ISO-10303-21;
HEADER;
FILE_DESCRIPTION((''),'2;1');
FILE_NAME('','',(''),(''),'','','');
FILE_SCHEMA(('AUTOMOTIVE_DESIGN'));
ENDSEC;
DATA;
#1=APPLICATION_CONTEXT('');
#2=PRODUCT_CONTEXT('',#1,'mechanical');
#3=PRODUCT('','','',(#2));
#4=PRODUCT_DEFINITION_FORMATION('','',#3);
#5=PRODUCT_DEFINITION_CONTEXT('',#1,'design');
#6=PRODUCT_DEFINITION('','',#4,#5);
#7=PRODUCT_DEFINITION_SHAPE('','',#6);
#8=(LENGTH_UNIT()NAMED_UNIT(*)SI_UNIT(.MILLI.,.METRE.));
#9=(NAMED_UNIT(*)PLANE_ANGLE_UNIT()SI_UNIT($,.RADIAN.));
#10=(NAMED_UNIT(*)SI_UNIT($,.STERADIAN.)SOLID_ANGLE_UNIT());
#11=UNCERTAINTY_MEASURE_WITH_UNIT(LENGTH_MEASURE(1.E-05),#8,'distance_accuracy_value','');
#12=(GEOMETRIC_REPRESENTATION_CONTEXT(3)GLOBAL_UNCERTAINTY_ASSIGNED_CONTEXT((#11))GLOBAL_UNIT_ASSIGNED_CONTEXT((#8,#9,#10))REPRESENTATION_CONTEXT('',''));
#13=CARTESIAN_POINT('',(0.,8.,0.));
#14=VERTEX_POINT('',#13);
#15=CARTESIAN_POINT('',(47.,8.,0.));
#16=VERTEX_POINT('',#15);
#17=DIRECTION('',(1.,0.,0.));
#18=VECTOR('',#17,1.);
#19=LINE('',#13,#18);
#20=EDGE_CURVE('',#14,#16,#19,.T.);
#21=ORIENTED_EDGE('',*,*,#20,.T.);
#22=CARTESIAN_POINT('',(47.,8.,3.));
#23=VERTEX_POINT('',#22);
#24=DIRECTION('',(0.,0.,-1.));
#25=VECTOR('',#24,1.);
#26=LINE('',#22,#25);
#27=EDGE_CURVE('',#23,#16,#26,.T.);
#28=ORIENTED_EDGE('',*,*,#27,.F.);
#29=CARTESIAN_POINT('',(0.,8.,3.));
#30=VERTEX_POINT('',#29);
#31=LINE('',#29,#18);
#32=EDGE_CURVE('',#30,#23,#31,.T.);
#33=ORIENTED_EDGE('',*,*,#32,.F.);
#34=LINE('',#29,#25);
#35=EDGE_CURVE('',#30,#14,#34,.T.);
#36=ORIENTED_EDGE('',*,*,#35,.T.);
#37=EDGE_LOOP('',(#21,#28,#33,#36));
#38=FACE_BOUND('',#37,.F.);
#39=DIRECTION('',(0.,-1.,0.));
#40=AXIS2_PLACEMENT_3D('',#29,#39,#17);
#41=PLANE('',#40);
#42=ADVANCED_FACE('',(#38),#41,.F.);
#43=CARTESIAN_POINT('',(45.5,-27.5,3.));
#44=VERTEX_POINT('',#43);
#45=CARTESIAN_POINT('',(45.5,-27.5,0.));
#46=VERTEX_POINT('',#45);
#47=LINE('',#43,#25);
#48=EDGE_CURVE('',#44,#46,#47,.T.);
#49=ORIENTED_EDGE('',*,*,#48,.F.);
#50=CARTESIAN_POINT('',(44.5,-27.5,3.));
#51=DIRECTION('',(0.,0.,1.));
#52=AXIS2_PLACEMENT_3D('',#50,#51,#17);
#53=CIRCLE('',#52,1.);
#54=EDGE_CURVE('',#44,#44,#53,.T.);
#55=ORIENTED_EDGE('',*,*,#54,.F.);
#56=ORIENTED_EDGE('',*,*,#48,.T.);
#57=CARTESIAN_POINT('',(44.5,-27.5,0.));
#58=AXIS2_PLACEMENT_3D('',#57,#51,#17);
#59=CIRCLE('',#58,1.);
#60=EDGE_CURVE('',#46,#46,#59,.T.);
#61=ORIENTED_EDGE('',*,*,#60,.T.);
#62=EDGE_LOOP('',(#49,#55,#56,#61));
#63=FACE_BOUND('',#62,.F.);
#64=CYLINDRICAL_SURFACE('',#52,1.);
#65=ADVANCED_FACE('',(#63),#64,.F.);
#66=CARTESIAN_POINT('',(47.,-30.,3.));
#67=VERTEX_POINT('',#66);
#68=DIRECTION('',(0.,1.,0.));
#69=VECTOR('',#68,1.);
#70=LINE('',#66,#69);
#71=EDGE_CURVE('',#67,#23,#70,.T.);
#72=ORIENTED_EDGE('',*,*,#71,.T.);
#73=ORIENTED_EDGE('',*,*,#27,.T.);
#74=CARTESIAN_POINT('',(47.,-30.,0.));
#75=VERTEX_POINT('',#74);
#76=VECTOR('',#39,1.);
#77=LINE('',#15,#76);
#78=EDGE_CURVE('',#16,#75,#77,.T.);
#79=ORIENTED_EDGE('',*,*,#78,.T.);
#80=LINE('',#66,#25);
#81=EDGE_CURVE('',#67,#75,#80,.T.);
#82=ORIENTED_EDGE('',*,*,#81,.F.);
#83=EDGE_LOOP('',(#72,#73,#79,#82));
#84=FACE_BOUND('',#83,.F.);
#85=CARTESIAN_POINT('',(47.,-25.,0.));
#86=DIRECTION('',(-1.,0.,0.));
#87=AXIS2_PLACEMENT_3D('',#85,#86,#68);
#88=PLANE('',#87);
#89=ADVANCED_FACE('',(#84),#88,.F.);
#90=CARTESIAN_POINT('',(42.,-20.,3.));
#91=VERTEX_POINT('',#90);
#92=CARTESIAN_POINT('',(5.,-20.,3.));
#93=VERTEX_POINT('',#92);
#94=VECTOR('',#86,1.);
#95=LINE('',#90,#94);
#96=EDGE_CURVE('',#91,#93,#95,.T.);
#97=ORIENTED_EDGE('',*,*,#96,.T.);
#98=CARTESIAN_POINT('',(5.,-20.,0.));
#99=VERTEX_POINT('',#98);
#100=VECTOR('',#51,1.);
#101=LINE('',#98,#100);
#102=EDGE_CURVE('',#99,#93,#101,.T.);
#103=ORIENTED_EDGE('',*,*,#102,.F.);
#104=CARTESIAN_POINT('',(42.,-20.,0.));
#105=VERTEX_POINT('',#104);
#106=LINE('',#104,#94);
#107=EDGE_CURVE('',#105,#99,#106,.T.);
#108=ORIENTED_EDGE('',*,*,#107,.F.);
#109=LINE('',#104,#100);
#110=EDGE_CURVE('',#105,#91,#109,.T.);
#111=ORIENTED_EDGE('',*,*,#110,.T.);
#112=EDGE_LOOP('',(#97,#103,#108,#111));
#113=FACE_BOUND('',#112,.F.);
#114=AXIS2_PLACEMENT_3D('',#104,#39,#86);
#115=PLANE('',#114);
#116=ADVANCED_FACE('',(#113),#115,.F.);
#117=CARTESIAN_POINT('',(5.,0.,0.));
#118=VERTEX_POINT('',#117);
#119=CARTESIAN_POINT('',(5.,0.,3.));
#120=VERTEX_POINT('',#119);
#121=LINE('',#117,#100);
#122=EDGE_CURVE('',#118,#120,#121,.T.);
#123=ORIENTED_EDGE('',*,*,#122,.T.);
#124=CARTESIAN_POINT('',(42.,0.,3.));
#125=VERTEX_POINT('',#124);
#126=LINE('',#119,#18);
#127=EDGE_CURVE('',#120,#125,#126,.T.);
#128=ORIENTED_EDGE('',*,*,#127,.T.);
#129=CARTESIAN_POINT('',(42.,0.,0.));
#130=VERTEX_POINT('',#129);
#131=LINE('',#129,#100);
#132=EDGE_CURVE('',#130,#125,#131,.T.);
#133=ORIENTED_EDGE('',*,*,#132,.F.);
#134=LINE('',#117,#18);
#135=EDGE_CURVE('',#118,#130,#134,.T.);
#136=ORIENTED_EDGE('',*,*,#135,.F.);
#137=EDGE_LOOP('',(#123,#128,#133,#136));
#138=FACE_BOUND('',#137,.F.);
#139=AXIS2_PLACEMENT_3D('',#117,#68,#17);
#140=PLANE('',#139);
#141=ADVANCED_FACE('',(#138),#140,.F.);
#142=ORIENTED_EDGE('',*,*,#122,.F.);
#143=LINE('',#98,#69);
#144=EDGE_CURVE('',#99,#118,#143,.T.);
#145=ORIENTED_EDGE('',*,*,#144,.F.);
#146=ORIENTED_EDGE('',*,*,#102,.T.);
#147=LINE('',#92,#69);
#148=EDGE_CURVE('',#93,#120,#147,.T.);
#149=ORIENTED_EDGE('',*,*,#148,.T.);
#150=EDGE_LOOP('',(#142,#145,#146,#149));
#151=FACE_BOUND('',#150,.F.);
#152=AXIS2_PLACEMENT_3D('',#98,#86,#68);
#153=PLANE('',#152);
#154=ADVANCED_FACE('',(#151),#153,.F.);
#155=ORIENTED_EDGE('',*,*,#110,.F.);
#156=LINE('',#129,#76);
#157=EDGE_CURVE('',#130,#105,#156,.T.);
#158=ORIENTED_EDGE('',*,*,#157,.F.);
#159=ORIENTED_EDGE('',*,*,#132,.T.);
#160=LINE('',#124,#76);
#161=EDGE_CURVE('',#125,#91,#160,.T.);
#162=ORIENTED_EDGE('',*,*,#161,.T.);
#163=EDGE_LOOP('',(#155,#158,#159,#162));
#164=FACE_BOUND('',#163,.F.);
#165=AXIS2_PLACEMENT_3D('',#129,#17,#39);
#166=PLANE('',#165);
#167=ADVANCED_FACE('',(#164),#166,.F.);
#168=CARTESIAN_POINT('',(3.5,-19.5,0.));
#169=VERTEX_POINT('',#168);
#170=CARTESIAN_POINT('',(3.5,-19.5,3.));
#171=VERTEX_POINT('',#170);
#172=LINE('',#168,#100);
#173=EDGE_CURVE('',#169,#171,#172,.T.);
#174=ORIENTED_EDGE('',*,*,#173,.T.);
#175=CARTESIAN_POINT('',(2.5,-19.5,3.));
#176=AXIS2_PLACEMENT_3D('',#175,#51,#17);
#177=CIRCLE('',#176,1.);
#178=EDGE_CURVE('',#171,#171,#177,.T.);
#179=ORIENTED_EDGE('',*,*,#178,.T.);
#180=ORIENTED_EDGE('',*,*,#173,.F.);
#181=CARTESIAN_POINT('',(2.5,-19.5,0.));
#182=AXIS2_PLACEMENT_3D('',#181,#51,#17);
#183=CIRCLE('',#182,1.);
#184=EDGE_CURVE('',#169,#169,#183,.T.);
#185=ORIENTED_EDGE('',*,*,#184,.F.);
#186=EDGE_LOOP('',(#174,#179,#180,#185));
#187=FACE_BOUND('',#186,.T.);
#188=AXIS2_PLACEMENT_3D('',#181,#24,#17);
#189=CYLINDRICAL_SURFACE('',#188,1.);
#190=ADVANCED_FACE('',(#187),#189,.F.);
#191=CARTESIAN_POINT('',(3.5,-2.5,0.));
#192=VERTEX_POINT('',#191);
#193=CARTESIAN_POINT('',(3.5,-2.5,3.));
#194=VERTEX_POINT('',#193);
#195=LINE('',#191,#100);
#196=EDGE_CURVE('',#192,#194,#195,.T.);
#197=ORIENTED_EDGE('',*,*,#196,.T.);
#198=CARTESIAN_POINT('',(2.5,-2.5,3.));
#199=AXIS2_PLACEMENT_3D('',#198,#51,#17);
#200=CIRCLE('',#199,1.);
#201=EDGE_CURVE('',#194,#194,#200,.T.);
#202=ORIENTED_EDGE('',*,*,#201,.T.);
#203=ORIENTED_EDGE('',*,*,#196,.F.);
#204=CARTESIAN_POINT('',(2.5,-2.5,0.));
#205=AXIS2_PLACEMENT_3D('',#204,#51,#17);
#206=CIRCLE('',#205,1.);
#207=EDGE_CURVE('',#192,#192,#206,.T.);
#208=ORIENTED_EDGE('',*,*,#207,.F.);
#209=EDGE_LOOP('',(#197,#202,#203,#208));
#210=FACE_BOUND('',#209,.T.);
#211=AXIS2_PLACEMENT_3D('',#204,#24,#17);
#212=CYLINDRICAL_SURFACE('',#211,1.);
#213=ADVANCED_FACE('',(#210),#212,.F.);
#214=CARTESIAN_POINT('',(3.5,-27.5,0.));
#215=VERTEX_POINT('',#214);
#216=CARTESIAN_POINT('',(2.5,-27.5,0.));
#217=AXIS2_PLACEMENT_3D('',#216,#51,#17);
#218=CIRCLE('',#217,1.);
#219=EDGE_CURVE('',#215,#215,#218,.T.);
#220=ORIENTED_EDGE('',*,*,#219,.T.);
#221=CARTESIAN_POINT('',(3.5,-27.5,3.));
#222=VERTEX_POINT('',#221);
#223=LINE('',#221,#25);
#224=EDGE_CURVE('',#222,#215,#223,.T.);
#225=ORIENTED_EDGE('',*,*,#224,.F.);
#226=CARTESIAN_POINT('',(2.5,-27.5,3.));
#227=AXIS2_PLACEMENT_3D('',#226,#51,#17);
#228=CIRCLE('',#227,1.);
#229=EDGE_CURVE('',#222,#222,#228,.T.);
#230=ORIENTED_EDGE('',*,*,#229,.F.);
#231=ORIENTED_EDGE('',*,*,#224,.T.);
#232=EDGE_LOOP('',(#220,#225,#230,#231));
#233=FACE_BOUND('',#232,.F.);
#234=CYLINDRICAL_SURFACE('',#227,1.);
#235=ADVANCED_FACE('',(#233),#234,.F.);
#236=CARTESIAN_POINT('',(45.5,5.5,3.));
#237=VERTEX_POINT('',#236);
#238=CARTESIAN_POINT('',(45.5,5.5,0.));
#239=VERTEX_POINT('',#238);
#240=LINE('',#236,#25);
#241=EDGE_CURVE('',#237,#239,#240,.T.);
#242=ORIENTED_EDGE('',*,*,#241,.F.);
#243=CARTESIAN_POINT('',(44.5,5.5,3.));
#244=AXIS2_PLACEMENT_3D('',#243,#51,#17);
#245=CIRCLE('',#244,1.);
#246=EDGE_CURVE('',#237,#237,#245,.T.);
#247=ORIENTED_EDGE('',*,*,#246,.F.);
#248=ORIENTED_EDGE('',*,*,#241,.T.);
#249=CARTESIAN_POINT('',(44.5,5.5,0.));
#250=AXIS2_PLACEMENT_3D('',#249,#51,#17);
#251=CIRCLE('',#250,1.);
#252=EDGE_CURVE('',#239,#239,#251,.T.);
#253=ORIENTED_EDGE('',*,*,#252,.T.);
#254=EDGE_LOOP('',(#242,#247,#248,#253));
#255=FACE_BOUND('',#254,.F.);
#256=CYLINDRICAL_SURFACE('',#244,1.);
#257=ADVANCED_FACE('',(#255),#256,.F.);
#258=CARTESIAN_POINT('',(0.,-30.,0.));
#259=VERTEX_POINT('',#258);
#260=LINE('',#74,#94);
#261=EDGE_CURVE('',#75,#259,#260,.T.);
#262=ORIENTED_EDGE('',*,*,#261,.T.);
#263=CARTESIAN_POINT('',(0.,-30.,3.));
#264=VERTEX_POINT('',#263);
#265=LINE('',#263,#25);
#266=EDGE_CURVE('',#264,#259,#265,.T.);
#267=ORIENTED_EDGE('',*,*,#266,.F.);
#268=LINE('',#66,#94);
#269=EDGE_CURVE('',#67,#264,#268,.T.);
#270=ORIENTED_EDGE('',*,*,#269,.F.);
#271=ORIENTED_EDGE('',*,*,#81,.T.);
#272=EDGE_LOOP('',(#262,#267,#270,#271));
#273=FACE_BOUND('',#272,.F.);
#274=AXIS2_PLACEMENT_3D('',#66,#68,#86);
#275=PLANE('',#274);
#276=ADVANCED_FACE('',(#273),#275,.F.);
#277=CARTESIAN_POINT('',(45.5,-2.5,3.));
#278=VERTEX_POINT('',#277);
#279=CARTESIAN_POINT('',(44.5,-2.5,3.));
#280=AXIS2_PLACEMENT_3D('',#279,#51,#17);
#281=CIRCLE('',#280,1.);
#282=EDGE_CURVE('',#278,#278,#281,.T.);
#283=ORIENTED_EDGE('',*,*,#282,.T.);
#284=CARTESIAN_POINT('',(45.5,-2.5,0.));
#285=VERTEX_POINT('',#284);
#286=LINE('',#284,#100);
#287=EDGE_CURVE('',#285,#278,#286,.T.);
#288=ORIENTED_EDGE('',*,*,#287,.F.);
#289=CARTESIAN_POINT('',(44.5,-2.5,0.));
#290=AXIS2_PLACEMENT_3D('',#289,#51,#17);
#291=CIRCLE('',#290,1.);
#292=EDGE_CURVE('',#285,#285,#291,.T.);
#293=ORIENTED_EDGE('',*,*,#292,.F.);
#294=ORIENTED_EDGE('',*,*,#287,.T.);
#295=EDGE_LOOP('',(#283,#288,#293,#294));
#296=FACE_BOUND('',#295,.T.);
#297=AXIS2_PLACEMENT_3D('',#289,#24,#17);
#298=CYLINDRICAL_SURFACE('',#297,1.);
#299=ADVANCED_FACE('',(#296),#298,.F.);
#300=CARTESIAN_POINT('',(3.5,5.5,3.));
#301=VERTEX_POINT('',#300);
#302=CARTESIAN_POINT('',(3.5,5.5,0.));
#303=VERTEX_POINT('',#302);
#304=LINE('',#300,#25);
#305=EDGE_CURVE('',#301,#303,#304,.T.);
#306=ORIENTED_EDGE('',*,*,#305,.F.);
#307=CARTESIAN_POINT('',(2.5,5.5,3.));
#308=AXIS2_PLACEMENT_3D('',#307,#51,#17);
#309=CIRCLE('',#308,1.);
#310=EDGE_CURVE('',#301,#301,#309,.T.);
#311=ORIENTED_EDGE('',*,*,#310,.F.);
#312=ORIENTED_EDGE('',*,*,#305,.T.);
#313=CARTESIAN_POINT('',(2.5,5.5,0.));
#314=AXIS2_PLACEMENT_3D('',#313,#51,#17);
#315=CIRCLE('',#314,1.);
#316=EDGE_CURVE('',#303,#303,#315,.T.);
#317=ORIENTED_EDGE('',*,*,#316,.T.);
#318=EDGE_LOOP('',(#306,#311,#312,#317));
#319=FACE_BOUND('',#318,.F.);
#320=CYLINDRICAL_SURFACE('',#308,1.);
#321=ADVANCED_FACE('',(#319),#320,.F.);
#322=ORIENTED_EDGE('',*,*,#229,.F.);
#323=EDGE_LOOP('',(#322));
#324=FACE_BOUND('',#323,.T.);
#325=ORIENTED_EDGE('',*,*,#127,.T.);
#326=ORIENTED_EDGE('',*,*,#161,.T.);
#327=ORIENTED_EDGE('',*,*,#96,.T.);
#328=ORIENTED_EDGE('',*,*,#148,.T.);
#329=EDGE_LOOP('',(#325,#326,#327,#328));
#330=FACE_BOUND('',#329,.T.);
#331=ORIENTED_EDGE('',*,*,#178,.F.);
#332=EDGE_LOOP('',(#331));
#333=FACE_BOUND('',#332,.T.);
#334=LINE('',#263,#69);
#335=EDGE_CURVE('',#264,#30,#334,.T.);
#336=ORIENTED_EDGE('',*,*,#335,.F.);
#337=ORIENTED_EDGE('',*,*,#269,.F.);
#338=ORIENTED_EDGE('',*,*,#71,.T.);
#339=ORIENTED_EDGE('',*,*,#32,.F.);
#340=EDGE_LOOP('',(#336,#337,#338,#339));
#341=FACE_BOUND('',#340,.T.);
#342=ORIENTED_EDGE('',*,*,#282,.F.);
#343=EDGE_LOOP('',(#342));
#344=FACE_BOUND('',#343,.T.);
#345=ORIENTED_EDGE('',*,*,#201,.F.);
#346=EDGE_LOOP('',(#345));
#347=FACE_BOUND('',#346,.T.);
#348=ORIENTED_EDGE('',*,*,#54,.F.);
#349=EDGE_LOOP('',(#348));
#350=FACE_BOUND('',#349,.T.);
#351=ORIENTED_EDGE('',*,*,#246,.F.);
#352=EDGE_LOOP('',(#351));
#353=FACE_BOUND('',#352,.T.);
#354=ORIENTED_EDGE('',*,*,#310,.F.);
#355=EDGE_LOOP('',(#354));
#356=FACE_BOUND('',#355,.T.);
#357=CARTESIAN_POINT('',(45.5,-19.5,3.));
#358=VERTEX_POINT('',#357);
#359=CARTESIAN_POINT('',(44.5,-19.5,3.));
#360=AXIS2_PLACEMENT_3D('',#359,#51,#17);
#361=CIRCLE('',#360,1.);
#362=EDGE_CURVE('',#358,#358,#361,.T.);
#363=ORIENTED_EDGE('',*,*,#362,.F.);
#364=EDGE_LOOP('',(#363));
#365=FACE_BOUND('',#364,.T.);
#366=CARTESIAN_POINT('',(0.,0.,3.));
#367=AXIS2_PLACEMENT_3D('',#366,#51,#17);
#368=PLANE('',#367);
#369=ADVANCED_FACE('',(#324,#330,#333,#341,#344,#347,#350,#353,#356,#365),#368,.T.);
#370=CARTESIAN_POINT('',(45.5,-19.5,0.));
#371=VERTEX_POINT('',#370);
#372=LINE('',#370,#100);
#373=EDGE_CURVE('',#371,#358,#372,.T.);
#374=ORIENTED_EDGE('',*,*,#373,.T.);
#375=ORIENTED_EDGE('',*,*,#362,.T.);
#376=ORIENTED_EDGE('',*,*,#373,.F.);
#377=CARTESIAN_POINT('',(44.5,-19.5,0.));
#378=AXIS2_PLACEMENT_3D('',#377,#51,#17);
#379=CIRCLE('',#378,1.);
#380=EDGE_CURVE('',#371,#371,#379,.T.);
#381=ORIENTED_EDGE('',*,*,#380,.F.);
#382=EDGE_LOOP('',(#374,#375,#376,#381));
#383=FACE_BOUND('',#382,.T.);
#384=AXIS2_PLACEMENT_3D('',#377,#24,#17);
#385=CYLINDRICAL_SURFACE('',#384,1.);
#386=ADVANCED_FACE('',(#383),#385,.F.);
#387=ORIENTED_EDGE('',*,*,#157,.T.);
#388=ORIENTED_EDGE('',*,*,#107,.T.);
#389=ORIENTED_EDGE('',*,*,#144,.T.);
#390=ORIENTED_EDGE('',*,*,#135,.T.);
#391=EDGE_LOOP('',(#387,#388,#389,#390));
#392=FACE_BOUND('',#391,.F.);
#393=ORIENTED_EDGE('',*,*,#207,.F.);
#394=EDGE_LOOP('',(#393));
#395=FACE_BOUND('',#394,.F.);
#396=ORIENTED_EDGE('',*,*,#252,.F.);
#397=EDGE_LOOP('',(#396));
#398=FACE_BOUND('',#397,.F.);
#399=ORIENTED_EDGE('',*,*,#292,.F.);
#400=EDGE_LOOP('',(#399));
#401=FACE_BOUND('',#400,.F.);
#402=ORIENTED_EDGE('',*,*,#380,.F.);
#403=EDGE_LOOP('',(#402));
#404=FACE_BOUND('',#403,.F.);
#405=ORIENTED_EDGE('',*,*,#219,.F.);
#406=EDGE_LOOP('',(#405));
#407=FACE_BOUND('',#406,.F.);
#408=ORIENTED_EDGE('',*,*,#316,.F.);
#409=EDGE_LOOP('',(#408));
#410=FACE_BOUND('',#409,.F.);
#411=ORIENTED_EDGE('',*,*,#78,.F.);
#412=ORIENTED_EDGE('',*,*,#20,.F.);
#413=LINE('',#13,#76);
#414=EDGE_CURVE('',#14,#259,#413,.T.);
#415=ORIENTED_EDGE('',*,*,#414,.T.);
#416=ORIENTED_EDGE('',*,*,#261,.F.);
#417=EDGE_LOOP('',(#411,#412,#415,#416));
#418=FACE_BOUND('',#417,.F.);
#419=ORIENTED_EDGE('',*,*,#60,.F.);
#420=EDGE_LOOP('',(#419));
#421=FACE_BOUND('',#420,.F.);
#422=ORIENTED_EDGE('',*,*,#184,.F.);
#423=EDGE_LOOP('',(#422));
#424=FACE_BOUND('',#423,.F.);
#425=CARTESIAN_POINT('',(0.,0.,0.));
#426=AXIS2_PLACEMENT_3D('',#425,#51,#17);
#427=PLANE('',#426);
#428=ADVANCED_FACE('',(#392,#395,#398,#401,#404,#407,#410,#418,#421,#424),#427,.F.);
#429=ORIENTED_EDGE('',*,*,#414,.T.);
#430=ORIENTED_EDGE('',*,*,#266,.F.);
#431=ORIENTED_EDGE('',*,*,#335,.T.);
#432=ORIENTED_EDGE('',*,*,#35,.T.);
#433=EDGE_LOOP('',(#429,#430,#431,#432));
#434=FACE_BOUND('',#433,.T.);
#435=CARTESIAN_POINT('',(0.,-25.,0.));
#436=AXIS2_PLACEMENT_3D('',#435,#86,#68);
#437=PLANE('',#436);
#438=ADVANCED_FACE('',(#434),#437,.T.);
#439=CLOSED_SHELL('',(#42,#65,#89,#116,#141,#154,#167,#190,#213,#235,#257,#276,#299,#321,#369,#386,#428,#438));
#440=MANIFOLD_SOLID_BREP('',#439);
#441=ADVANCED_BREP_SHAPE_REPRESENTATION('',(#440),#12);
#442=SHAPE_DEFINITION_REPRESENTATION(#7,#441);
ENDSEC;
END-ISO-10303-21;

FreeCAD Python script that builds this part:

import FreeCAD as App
import Part
import Sketcher

V = App.Vector
Q = App.Units.Quantity

doc = App.newDocument("Part")
body = doc.addObject("PartDesign::Body", "Body")

# Sketch on XY plane
sketch1 = body.newObject("Sketcher::SketchObject", "Sketch")
sketch1.AttachmentSupport = (doc.getObject("XY_Plane"), [""])
sketch1.MapMode = "FlatFace"
sketch1.addGeometry([
    Part.LineSegment(V(0, 3, 0), V(0, -25, 0)),  # 0
    Part.LineSegment(V(0, -25, 0), V(47, -25, 0)),  # 1
    Part.LineSegment(V(47, -25, 0), V(47, 3, 0)),  # 2
    Part.LineSegment(V(47, 3, 0), V(0, 3, 0)),  # 3
    Part.Circle(V(2.5, -19.5, 0), V(0, 0, 1), 1),  # 4
    Part.Circle(V(44.5, -19.5, 0), V(0, 0, 1), 1),  # 5
    Part.Circle(V(2.5, -2.5, 0), V(0, 0, 1), 1),  # 6
    Part.LineSegment(V(5, -20, 0), V(5, 0, 0)),  # 7
    Part.LineSegment(V(5, 0, 0), V(42, 0, 0)),  # 8
    Part.LineSegment(V(42, 0, 0), V(42, -20, 0)),  # 9
    Part.LineSegment(V(42, -20, 0), V(5, -20, 0)),  # 10
    Part.Circle(V(44.5, -2.5, 0), V(0, 0, 1), 1),  # 11
], False)
sketch1.addConstraint([
    Sketcher.Constraint("Coincident", 0, 2, 1, 1),
    Sketcher.Constraint("Coincident", 1, 2, 2, 1),
    Sketcher.Constraint("Coincident", 2, 2, 3, 1),
    Sketcher.Constraint("Coincident", 3, 2, 0, 1),
    Sketcher.Constraint("Coincident", 7, 2, 8, 1),
    Sketcher.Constraint("Coincident", 8, 2, 9, 1),
    Sketcher.Constraint("Coincident", 9, 2, 10, 1),
    Sketcher.Constraint("Coincident", 10, 2, 7, 1),
    Sketcher.Constraint("Vertical", 0),
    Sketcher.Constraint("Horizontal", 1),
    Sketcher.Constraint("Vertical", 2),
    Sketcher.Constraint("Horizontal", 3),
    Sketcher.Constraint("Vertical", 7),
    Sketcher.Constraint("Horizontal", 8),
    Sketcher.Constraint("Vertical", 9),
    Sketcher.Constraint("Horizontal", 10),
    Sketcher.Constraint("Equal", 4, 5),
    Sketcher.Constraint("Equal", 5, 6),
    Sketcher.Constraint("Equal", 6, 11),
    Sketcher.Constraint("PointOnObject", 0, 2, -2),
    Sketcher.Constraint("PointOnObject", 7, 2, -1),
    Sketcher.Constraint("Horizontal", 4, 3, 5, 3),
    Sketcher.Constraint("Horizontal", 6, 3, 11, 3),
    Sketcher.Constraint("Vertical", 4, 3, 6, 3),
    Sketcher.Constraint("Vertical", 5, 3, 11, 3),
    Sketcher.Constraint("Diameter", 4, Q("2 mm")),
    Sketcher.Constraint("DistanceX", 1, 1, 1, 2, Q("47 mm")),
    Sketcher.Constraint("DistanceX", 8, 1, 8, 2, Q("37 mm")),
    Sketcher.Constraint("DistanceY", 0, 2, 0, 1, Q("28 mm")),
    Sketcher.Constraint("DistanceY", 7, 1, 7, 2, Q("20 mm")),
    Sketcher.Constraint("DistanceY", 0, 2, -1, 1, Q("25 mm")),
    Sketcher.Constraint("DistanceX", -1, 1, 7, 2, Q("5 mm")),
    Sketcher.Constraint("DistanceX", 4, 3, 5, 3, Q("42 mm")),
    Sketcher.Constraint("DistanceY", 4, 3, 6, 3, Q("17 mm")),
    Sketcher.Constraint("DistanceX", -1, 1, 4, 3, Q("2.5 mm")),
    Sketcher.Constraint("DistanceY", 4, 3, -1, 1, Q("19.5 mm")),
])
pad1 = body.newObject("PartDesign::Pad", "Pad")
pad1.Profile = sketch1
pad1.Length = 3

# Sketch on XY plane
sketch2 = body.newObject("Sketcher::SketchObject", "Sketch001")
sketch2.AttachmentSupport = (doc.getObject("XY_Plane"), [""])
sketch2.MapMode = "FlatFace"
sketch2.AttachmentOffset = App.Placement(V(0, 0, 3), App.Rotation())
sketch2.addGeometry([
    Part.LineSegment(V(0, 3, 0), V(47, 3, 0)),  # 0
    Part.LineSegment(V(47, 3, 0), V(47, 8, 0)),  # 1
    Part.LineSegment(V(47, 8, 0), V(0, 8, 0)),  # 2
    Part.LineSegment(V(0, 8, 0), V(0, 3, 0)),  # 3
    Part.LineSegment(V(47, -25, 0), V(0, -25, 0)),  # 4
    Part.LineSegment(V(0, -25, 0), V(0, -30, 0)),  # 5
    Part.LineSegment(V(0, -30, 0), V(47, -30, 0)),  # 6
    Part.LineSegment(V(47, -30, 0), V(47, -25, 0)),  # 7
], False)
sketch2.addConstraint([
    Sketcher.Constraint("Coincident", 0, 2, 1, 1),
    Sketcher.Constraint("Coincident", 1, 2, 2, 1),
    Sketcher.Constraint("Coincident", 2, 2, 3, 1),
    Sketcher.Constraint("Coincident", 3, 2, 0, 1),
    Sketcher.Constraint("Coincident", 4, 2, 5, 1),
    Sketcher.Constraint("Coincident", 5, 2, 6, 1),
    Sketcher.Constraint("Coincident", 6, 2, 7, 1),
    Sketcher.Constraint("Coincident", 7, 2, 4, 1),
    Sketcher.Constraint("Horizontal", 0),
    Sketcher.Constraint("Vertical", 1),
    Sketcher.Constraint("Horizontal", 2),
    Sketcher.Constraint("Vertical", 3),
    Sketcher.Constraint("Horizontal", 4),
    Sketcher.Constraint("Vertical", 5),
    Sketcher.Constraint("Horizontal", 6),
    Sketcher.Constraint("Vertical", 7),
    Sketcher.Constraint("PointOnObject", 2, 2, -2),
    Sketcher.Constraint("PointOnObject", 4, 2, -2),
    Sketcher.Constraint("Vertical", 1, 2, 6, 2),
    Sketcher.Constraint("Equal", 3, 5),
    Sketcher.Constraint("DistanceY", 1, 1, 1, 2, Q("5 mm")),
    Sketcher.Constraint("DistanceX", 0, 1, 0, 2, Q("47 mm")),
    Sketcher.Constraint("DistanceY", -1, 1, 0, 2, Q("3 mm")),
    Sketcher.Constraint("DistanceY", 4, 2, -1, 1, Q("25 mm")),
])
pad2 = body.newObject("PartDesign::Pad", "Pad001")
pad2.Profile = sketch2
pad2.Length = 3
pad2.Reversed = True

# Sketch on XY plane
sketch3 = body.newObject("Sketcher::SketchObject", "Sketch002")
sketch3.AttachmentSupport = (doc.getObject("XY_Plane"), [""])
sketch3.MapMode = "FlatFace"
sketch3.AttachmentOffset = App.Placement(V(0, 0, 3), App.Rotation())
sketch3.addGeometry([
    Part.Circle(V(2.5, 5.5, 0), V(0, 0, 1), 1),
    Part.Circle(V(44.5, 5.5, 0), V(0, 0, 1), 1),
    Part.Circle(V(2.5, -27.5, 0), V(0, 0, 1), 1),
    Part.Circle(V(44.5, -27.5, 0), V(0, 0, 1), 1),
], False)
sketch3.addConstraint([
    Sketcher.Constraint("Equal", 0, 1),
    Sketcher.Constraint("Equal", 1, 2),
    Sketcher.Constraint("Equal", 2, 3),
    Sketcher.Constraint("Horizontal", 0, 3, 1, 3),
    Sketcher.Constraint("Horizontal", 2, 3, 3, 3),
    Sketcher.Constraint("Vertical", 0, 3, 2, 3),
    Sketcher.Constraint("Vertical", 1, 3, 3, 3),
    Sketcher.Constraint("Diameter", 0, Q("2 mm")),
    Sketcher.Constraint("DistanceX", -1, 1, 0, 3, Q("2.5 mm")),
    Sketcher.Constraint("DistanceX", 0, 3, 1, 3, Q("42 mm")),
    Sketcher.Constraint("DistanceY", 2, 3, 0, 3, Q("33 mm")),
    Sketcher.Constraint("DistanceY", -1, 1, 0, 3, Q("5.5 mm")),
])
pocket1 = body.newObject("PartDesign::Pocket", "Pocket")
pocket1.Profile = sketch3
pocket1.Length = 3

doc.recompute()
